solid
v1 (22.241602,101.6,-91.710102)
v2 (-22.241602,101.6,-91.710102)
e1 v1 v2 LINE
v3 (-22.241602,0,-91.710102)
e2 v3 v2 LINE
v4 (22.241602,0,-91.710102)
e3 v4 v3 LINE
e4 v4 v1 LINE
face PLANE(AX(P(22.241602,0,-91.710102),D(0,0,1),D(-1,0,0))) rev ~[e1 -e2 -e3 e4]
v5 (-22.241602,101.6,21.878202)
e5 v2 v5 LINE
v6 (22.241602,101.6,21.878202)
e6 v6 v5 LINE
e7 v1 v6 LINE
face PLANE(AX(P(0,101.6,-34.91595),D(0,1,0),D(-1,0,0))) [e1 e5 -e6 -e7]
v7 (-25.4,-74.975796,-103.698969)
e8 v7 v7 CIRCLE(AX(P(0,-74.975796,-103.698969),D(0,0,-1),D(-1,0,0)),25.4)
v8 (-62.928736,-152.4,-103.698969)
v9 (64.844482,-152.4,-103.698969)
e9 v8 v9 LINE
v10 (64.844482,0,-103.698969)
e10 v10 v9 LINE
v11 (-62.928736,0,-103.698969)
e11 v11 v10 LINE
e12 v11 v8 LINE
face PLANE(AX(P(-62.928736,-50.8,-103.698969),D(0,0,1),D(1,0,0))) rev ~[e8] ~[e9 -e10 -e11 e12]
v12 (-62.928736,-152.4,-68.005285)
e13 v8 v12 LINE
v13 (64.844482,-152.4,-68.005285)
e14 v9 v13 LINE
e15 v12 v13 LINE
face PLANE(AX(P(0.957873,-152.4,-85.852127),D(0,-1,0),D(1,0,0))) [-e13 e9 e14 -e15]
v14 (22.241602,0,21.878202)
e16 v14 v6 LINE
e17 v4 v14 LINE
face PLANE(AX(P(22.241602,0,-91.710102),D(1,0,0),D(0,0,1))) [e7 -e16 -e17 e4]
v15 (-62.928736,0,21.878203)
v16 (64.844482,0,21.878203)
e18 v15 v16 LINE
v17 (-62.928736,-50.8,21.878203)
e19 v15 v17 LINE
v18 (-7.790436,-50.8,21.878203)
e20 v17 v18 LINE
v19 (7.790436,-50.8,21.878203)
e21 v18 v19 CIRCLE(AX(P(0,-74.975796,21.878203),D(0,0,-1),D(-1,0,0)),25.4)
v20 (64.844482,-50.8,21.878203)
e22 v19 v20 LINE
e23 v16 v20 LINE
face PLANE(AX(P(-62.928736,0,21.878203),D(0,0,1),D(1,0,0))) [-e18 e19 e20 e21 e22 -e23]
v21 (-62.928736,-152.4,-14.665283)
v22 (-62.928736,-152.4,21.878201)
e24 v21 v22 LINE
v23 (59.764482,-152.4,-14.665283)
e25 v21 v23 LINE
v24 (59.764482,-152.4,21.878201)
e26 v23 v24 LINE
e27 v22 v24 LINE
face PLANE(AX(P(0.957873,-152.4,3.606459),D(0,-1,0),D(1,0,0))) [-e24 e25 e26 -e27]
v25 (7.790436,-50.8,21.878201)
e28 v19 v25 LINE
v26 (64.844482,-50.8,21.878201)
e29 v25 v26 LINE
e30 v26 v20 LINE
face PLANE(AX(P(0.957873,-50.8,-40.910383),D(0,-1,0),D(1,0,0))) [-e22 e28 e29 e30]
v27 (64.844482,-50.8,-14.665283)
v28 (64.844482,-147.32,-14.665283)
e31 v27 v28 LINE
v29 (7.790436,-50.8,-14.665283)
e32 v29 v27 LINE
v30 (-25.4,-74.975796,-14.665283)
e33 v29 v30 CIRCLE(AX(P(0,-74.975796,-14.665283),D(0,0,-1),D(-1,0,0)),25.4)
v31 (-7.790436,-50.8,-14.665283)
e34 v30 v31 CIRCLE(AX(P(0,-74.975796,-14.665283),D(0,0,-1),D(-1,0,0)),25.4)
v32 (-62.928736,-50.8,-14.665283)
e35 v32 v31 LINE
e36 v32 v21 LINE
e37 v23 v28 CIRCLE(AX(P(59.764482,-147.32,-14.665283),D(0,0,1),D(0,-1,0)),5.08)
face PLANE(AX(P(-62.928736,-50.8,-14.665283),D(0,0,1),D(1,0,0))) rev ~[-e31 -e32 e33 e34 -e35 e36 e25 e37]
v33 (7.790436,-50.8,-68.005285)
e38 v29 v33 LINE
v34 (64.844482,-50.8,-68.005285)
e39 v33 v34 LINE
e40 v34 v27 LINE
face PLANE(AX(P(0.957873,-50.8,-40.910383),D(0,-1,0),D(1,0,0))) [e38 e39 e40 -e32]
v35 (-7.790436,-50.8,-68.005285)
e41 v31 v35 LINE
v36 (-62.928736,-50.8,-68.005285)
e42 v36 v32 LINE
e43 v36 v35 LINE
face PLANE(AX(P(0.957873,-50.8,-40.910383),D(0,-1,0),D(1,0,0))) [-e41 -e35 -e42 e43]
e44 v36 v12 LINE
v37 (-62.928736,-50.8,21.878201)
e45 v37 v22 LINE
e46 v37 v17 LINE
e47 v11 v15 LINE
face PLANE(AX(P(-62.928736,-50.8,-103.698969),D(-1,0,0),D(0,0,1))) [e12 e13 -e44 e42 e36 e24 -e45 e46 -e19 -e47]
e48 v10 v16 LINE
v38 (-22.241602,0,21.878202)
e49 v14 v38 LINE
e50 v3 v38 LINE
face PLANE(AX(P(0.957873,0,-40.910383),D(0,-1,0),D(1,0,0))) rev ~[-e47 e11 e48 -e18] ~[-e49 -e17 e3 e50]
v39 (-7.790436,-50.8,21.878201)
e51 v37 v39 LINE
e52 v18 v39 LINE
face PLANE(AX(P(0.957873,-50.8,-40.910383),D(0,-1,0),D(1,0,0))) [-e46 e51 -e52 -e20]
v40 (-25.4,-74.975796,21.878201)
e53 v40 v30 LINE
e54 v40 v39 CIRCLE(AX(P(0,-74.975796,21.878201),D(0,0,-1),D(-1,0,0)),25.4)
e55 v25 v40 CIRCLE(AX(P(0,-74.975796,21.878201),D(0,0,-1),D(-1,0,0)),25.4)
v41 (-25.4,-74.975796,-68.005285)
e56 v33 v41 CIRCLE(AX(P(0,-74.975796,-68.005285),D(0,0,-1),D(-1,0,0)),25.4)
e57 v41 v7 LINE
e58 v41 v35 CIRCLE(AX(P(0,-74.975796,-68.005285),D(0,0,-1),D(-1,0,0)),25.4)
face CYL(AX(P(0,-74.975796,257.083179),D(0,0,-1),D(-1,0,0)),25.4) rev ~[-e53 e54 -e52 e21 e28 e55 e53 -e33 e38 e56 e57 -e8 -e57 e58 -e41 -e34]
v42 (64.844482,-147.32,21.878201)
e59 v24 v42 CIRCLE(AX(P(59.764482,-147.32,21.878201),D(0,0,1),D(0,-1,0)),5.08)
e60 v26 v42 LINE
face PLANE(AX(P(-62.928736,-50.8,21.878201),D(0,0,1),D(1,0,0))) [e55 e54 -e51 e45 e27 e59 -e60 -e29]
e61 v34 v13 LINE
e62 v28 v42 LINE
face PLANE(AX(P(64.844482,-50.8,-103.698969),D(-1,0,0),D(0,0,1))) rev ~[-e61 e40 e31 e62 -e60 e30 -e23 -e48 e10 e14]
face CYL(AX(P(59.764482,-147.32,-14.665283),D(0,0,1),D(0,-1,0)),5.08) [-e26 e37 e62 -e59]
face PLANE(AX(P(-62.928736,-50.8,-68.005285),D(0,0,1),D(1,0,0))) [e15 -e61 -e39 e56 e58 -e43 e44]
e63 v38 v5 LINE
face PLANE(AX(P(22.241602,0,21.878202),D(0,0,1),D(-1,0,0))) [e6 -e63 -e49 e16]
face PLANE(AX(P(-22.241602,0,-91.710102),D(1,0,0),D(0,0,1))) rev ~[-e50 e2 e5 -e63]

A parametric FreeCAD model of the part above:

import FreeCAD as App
import Part
import Sketcher

V = App.Vector
Q = App.Units.Quantity


def edges_at(feature, points):
    """Names of the edges that pass closest to the given points."""
    edges = feature.Shape.Edges
    near = lambda p: min(range(len(edges)), key=lambda i: edges[i].distToShape(Part.Vertex(*p))[0])
    return sorted({f"Edge{near(p) + 1}" for p in points})


def add_polygon(sketch, points):
    """Adds a closed chain of lines whose ends are joined by coincident constraints."""
    first, n = sketch.GeometryCount, len(points)
    for a, b in zip(points, points[1:] + points[:1]):
        sketch.addGeometry(Part.LineSegment(App.Vector(*a, 0), App.Vector(*b, 0)), False)
    for i in range(n):
        sketch.addConstraint(Sketcher.Constraint("Coincident", first + i, 2, first + (i + 1) % n, 1))

doc = App.newDocument("Part")
params = doc.addObject("Spreadsheet::Sheet", "Params")
for row, (alias, value) in enumerate([
    ("pad1_length", "2 in"),
    ("pad2_length", "4 in"),
    ("sketch3_diameter", "2 in"),
    ("hole_diameter", "2 in"),
    ("fillet_radius", "0.2 in"),
    ("pad3_length", "4 in"),
], start=1):
    params.set(f"A{row}", alias)
    params.set(f"B{row}", "=" + value)
    params.setAlias(f"B{row}", alias)

body = doc.addObject("PartDesign::Body", "Body")

# Sketch on XZ plane
sketch1 = body.newObject("Sketcher::SketchObject", "Sketch")
sketch1.AttachmentSupport = (doc.getObject("XZ_Plane"), [""])
sketch1.MapMode = "FlatFace"
add_polygon(sketch1, [(-62.928736, 21.878203), (-62.928736, -103.698969), (64.844482, -103.698969), (64.844482, 21.878203)])  # lines 0-3
sketch1.addConstraint([
    Sketcher.Constraint("Vertical", 0),
    Sketcher.Constraint("Horizontal", 1),
    Sketcher.Constraint("Vertical", 2),
    Sketcher.Constraint("Horizontal", 3),
    Sketcher.Constraint("DistanceX", 1, 1, 1, 2, 127.773218),
    Sketcher.Constraint("DistanceY", 0, 2, 0, 1, 125.577171),
    Sketcher.Constraint("DistanceY", 0, 2, -1, 1, 103.698969),
    Sketcher.Constraint("DistanceX", -1, 1, 1, 2, 64.844482),
])
pad1 = body.newObject("PartDesign::Pad", "Pad")
pad1.Profile = sketch1
pad1.setExpression("Length", "Params.pad1_length")

# Sketch on XZ plane
sketch2 = body.newObject("Sketcher::SketchObject", "Sketch001")
sketch2.AttachmentSupport = (doc.getObject("XZ_Plane"), [""])
sketch2.MapMode = "FlatFace"
sketch2.AttachmentOffset = App.Placement(V(0, 0, 2 * 25.4), App.Rotation())
add_polygon(sketch2, [(-62.928736, 21.878201), (-62.928736, -14.665283), (64.844482, -14.665283), (64.844482, 21.878201)])  # lines 0-3
add_polygon(sketch2, [(-62.928736, -68.005285), (-62.928736, -103.698969), (64.844482, -103.698969), (64.844482, -68.005285)])  # lines 4-7
sketch2.addConstraint([
    Sketcher.Constraint("Vertical", 0),
    Sketcher.Constraint("Horizontal", 1),
    Sketcher.Constraint("Vertical", 2),
    Sketcher.Constraint("Horizontal", 3),
    Sketcher.Constraint("Vertical", 4),
    Sketcher.Constraint("Horizontal", 5),
    Sketcher.Constraint("Vertical", 6),
    Sketcher.Constraint("Horizontal", 7),
    Sketcher.Constraint("Vertical", 3, 2, 4, 2),
    Sketcher.Constraint("Vertical", 2, 2, 5, 2),
    Sketcher.Constraint("DistanceY", 6, 2, 1, 2, Q("2.1000001 in")),
    Sketcher.Constraint("DistanceX", 1, 1, 1, 2, 127.773218),
    Sketcher.Constraint("DistanceY", -1, 1, 2, 2, 21.878201),
    Sketcher.Constraint("DistanceY", 0, 2, 0, 1, 36.543485),
    Sketcher.Constraint("DistanceY", 4, 2, 4, 1, 35.693683),
    Sketcher.Constraint("DistanceX", -1, 1, 1, 2, 64.844482),
])
pad2 = body.newObject("PartDesign::Pad", "Pad001")
pad2.Profile = sketch2
pad2.setExpression("Length", "Params.pad2_length")

# Sketch on XY plane
sketch3 = body.newObject("Sketcher::SketchObject", "Sketch002")
sketch3.AttachmentSupport = (doc.getObject("XY_Plane"), [""])
sketch3.MapMode = "FlatFace"
sketch3.AttachmentOffset = App.Placement(V(0, 0, 21.878202), App.Rotation())
sketch3.addGeometry(Part.Circle(V(0, -74.975796, 0), V(0, 0, 1), 25.4), False)
sketch3.addConstraint([
    Sketcher.Constraint("PointOnObject", 0, 3, -2),
    Sketcher.Constraint("Diameter", 0, Q("2 in")),
    Sketcher.Constraint("DistanceY", 0, 3, -1, 1, 74.975796),
])
sketch3.setExpression("Constraints[1]", "Params.sketch3_diameter")
doc.recompute()
hole = body.newObject("PartDesign::Hole", "Hole")
hole.Profile = sketch3
hole.ThreadType = "None"
hole.setExpression("Diameter", "Params.hole_diameter")
hole.DepthType = "ThroughAll"
doc.recompute()

fillet = body.newObject("PartDesign::Fillet", "Fillet")
fillet.Base = (hole, edges_at(hole, [(64.844, -152.4, 3.606)]))
fillet.setExpression("Radius", "Params.fillet_radius")

# Sketch on XZ plane
sketch4 = body.newObject("Sketcher::SketchObject", "Sketch003")
sketch4.AttachmentSupport = (doc.getObject("XZ_Plane"), [""])
sketch4.MapMode = "FlatFace"
add_polygon(sketch4, [(22.241602, 21.878202), (22.241602, -91.710102), (-22.241602, -91.710102), (-22.241602, 21.878202)])  # lines 0-3
sketch4.addConstraint([
    Sketcher.Constraint("Vertical", 0),
    Sketcher.Constraint("Horizontal", 1),
    Sketcher.Constraint("Vertical", 2),
    Sketcher.Constraint("Horizontal", 3),
    Sketcher.Constraint("DistanceX", 1, 2, 1, 1, 44.483204),
    Sketcher.Constraint("DistanceY", 0, 2, 0, 1, 113.588304),
    Sketcher.Constraint("DistanceX", -1, 1, 0, 2, 22.241602),
    Sketcher.Constraint("DistanceY", 0, 2, -1, 1, 91.710102),
])
pad3 = body.newObject("PartDesign::Pad", "Pad002")
pad3.Profile = sketch4
pad3.setExpression("Length", "Params.pad3_length")
pad3.Reversed = True

doc.recompute()
